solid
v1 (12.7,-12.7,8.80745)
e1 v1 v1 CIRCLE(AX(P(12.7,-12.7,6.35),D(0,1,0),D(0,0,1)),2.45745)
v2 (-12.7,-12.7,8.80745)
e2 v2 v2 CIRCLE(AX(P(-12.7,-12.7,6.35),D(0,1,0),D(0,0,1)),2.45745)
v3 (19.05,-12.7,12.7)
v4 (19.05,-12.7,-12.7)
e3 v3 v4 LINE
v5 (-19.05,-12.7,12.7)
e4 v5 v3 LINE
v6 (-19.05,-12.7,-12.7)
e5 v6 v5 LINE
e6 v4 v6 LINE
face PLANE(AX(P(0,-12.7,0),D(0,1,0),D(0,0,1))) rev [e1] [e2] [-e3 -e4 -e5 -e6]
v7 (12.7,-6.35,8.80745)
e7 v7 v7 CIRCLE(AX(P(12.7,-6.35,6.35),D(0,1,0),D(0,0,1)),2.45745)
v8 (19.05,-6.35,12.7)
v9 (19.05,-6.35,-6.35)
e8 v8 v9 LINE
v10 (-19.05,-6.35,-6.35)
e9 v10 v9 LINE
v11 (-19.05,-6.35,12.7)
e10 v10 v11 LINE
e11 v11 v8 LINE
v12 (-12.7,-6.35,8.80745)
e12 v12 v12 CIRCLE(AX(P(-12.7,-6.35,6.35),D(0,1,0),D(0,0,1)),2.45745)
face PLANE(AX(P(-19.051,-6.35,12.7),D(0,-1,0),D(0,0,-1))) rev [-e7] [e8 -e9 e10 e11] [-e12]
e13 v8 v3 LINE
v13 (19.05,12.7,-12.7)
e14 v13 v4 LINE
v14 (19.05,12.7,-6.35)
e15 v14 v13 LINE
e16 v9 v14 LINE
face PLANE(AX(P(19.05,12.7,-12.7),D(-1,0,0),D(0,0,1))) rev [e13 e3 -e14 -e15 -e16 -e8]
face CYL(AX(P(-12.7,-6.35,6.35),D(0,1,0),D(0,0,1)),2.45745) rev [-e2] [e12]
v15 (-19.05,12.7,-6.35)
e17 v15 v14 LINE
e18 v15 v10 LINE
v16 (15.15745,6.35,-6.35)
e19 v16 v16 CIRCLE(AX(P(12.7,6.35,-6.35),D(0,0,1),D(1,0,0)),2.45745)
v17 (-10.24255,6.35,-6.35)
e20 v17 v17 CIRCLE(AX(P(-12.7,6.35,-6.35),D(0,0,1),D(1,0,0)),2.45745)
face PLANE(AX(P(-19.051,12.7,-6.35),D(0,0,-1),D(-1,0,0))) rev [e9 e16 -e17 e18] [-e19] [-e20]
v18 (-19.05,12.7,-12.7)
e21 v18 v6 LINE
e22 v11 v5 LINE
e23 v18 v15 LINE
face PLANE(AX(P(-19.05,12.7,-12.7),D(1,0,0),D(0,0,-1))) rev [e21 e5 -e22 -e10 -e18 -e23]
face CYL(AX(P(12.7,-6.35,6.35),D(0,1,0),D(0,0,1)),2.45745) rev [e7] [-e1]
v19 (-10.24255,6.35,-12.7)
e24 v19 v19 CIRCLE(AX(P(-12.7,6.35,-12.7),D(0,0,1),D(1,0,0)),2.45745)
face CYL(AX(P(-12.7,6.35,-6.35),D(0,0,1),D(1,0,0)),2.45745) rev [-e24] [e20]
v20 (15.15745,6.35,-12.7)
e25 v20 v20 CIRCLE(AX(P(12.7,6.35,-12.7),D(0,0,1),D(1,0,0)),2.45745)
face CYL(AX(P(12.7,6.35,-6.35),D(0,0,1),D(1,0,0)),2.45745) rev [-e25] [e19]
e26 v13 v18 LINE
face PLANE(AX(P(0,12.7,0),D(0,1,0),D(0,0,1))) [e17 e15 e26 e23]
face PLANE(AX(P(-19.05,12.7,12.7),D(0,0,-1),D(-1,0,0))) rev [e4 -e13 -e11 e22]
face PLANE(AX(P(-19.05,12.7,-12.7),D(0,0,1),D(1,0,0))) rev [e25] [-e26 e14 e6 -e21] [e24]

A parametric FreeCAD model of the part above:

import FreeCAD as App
import Part
import Sketcher
Q = App.Units.Quantity

doc = App.newDocument("Part")
body = doc.addObject("PartDesign::Body", "Body")

sketch1 = body.newObject("Sketcher::SketchObject", "Sketch")
sketch1.AttachmentSupport = (doc.getObject("XZ_Plane"), [""])
sketch1.MapMode = "FlatFace"
sketch1.addGeometry(Part.LineSegment(App.Vector(-19, -13, 0), App.Vector(-19, 13, 0)), False)
sketch1.addGeometry(Part.LineSegment(App.Vector(-19, 13, 0), App.Vector(19, 13, 0)), False)
sketch1.addGeometry(Part.LineSegment(App.Vector(19, 13, 0), App.Vector(19, -13, 0)), False)
sketch1.addGeometry(Part.LineSegment(App.Vector(19, -13, 0), App.Vector(-19, -13, 0)), False)
sketch1.addConstraint(Sketcher.Constraint("Coincident", 0, 2, 1, 1))
sketch1.addConstraint(Sketcher.Constraint("Coincident", 1, 2, 2, 1))
sketch1.addConstraint(Sketcher.Constraint("Coincident", 2, 2, 3, 1))
sketch1.addConstraint(Sketcher.Constraint("Coincident", 3, 2, 0, 1))
sketch1.addConstraint(Sketcher.Constraint("Vertical", 0))
sketch1.addConstraint(Sketcher.Constraint("Horizontal", 1))
sketch1.addConstraint(Sketcher.Constraint("Vertical", 2))
sketch1.addConstraint(Sketcher.Constraint("Horizontal", 3))
sketch1.addConstraint(Sketcher.Constraint("Symmetric", 0, 2, 2, 2, -1, 1))
sketch1.addConstraint(Sketcher.Constraint("DistanceY", 0, 1, 0, 2, Q("1 in")))
sketch1.addConstraint(Sketcher.Constraint("DistanceX", 1, 1, 1, 2, Q("1.5 in")))
pad1 = body.newObject("PartDesign::Pad", "Pad")
pad1.Profile = sketch1
pad1.Length = Q("1 in")
pad1.Midplane = True

sketch2 = body.newObject("Sketcher::SketchObject", "Sketch001")
sketch2.AttachmentSupport = (doc.getObject("YZ_Plane"), [""])
sketch2.MapMode = "FlatFace"
sketch2.AttachmentOffset = App.Placement(App.Vector(0, 0, 0.75 * 25.4), App.Rotation())
sketch2.addGeometry(Part.LineSegment(App.Vector(13, 13, 0), App.Vector(-6, 13, 0)), False)
sketch2.addGeometry(Part.LineSegment(App.Vector(-6, 13, 0), App.Vector(-6, -6, 0)), False)
sketch2.addGeometry(Part.LineSegment(App.Vector(-6, -6, 0), App.Vector(13, -6, 0)), False)
sketch2.addGeometry(Part.LineSegment(App.Vector(13, -6, 0), App.Vector(13, 13, 0)), False)
sketch2.addConstraint(Sketcher.Constraint("Coincident", 0, 2, 1, 1))
sketch2.addConstraint(Sketcher.Constraint("Coincident", 1, 2, 2, 1))
sketch2.addConstraint(Sketcher.Constraint("Coincident", 2, 2, 3, 1))
sketch2.addConstraint(Sketcher.Constraint("Coincident", 3, 2, 0, 1))
sketch2.addConstraint(Sketcher.Constraint("Horizontal", 0))
sketch2.addConstraint(Sketcher.Constraint("Vertical", 1))
sketch2.addConstraint(Sketcher.Constraint("Horizontal", 2))
sketch2.addConstraint(Sketcher.Constraint("Vertical", 3))
sketch2.addConstraint(Sketcher.Constraint("Equal", 2, 1))
sketch2.addConstraint(Sketcher.Constraint("DistanceX", 0, 2, 0, 1, Q("0.75 in")))
sketch2.addConstraint(Sketcher.Constraint("DistanceY", -1, 1, 0, 2, Q("0.5 in")))
sketch2.addConstraint(Sketcher.Constraint("DistanceX", -1, 1, 2, 2, Q("0.5 in")))
pocket1 = body.newObject("PartDesign::Pocket", "Pocket")
pocket1.Profile = sketch2
pocket1.Type = "UpToFirst"

sketch3 = body.newObject("Sketcher::SketchObject", "Sketch002")
sketch3.AttachmentSupport = (doc.getObject("XY_Plane"), [""])
sketch3.MapMode = "FlatFace"
sketch3.AttachmentOffset = App.Placement(App.Vector(0, 0, -0.25 * 25.4), App.Rotation())
sketch3.addGeometry(Part.Circle(App.Vector(-12.7, 6.3, 0), App.Vector(0, 0, 1), 2.5), False)
sketch3.addGeometry(Part.Circle(App.Vector(12.7, 6.3, 0), App.Vector(0, 0, 1), 2.5), False)
sketch3.addConstraint(Sketcher.Constraint("Equal", 0, 1))
sketch3.addConstraint(Sketcher.Constraint("Symmetric", 0, 3, 1, 3, -2))
sketch3.addConstraint(Sketcher.Constraint("DistanceX", 0, 3, 1, 3, Q("1 in")))
sketch3.addConstraint(Sketcher.Constraint("Diameter", 0, Q("0.1935 in")))
sketch3.addConstraint(Sketcher.Constraint("DistanceY", -1, 1, 0, 3, Q("0.25 in")))
doc.recompute()
hole = body.newObject("PartDesign::Hole", "Hole")
hole.Profile = sketch3
hole.ThreadType = "None"
hole.Diameter = Q("0.1935 in")
hole.DepthType = "Dimension"
hole.Depth = Q("0.25 in")
hole.DrillPoint = "Flat"

sketch4 = body.newObject("Sketcher::SketchObject", "Sketch003")
sketch4.AttachmentSupport = (doc.getObject("XZ_Plane"), [""])
sketch4.MapMode = "FlatFace"
sketch4.AttachmentOffset = App.Placement(App.Vector(0, 0, 0.25 * 25.4), App.Rotation())
sketch4.addGeometry(Part.Circle(App.Vector(-12.7, 6.3, 0), App.Vector(0, 0, 1), 2.5), False)
sketch4.addGeometry(Part.Circle(App.Vector(12.7, 6.3, 0), App.Vector(0, 0, 1), 2.5), False)
sketch4.addConstraint(Sketcher.Constraint("Equal", 0, 1))
sketch4.addConstraint(Sketcher.Constraint("Symmetric", 0, 3, 1, 3, -2))
sketch4.addConstraint(Sketcher.Constraint("DistanceX", 0, 3, 1, 3, Q("1 in")))
sketch4.addConstraint(Sketcher.Constraint("Diameter", 0, Q("0.1935 in")))
sketch4.addConstraint(Sketcher.Constraint("DistanceY", -1, 1, 0, 3, Q("0.25 in")))
doc.recompute()
hole2 = body.newObject("PartDesign::Hole", "Hole001")
hole2.Profile = sketch4
hole2.ThreadType = "None"
hole2.Diameter = Q("0.1935 in")
hole2.DepthType = "Dimension"
hole2.Depth = Q("0.5 in")
hole2.DrillPoint = "Angled"
hole2.DrillPointAngle = 118
hole2.Reversed = True

doc.recompute()
